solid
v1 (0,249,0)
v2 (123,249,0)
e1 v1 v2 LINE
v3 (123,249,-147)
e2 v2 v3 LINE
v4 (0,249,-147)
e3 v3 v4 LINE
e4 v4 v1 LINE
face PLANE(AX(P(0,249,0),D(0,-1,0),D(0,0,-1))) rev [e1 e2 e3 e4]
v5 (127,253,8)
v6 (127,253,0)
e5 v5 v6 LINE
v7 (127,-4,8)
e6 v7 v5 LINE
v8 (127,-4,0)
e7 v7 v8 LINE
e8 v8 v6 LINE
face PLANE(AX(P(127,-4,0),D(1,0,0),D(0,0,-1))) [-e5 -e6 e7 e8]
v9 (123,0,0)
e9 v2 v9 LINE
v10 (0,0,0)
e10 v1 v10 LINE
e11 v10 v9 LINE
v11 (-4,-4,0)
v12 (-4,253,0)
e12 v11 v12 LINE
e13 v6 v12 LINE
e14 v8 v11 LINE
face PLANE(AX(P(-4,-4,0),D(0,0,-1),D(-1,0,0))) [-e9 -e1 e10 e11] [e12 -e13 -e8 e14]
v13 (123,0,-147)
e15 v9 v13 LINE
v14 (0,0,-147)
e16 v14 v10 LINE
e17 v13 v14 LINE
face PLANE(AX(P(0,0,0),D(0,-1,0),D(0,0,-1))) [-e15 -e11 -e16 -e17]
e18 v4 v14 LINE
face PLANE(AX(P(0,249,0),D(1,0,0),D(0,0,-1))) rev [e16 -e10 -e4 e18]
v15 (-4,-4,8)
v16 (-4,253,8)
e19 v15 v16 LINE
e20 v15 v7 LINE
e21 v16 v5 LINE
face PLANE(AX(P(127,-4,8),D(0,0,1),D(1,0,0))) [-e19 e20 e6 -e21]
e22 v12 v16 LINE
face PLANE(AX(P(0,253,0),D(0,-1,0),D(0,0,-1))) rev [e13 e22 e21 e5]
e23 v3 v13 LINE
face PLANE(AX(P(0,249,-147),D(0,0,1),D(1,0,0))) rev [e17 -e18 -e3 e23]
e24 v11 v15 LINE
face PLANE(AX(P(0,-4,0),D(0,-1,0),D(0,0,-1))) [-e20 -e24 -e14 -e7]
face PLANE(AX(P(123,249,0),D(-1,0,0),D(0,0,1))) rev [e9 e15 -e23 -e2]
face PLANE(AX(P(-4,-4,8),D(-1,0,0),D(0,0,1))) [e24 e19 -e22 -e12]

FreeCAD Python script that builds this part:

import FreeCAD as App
import Part
import Sketcher
Q = App.Units.Quantity


def add_polygon(sketch, points):
    """Adds a closed chain of lines whose ends are joined by coincident constraints."""
    first, n = sketch.GeometryCount, len(points)
    for a, b in zip(points, points[1:] + points[:1]):
        sketch.addGeometry(Part.LineSegment(App.Vector(*a, 0), App.Vector(*b, 0)), False)
    for i in range(n):
        sketch.addConstraint(Sketcher.Constraint("Coincident", first + i, 2, first + (i + 1) % n, 1))

doc = App.newDocument("Part")
body = doc.addObject("PartDesign::Body", "Body")

# Sketch on XZ plane
sketch1 = body.newObject("Sketcher::SketchObject", "Sketch")
sketch1.AttachmentSupport = (doc.getObject("XZ_Plane"), [""])
sketch1.MapMode = "FlatFace"
add_polygon(sketch1, [(0, -147), (0, 0), (123, 0), (123, -147)])  # lines 0-3
sketch1.addConstraint([
    Sketcher.Constraint("Vertical", 0),
    Sketcher.Constraint("Horizontal", 1),
    Sketcher.Constraint("Vertical", 2),
    Sketcher.Constraint("Horizontal", 3),
    Sketcher.Constraint("Coincident", 0, 2, -1, 1),
    Sketcher.Constraint("DistanceX", 1, 1, 1, 2, Q("123 mm")),
    Sketcher.Constraint("DistanceY", 0, 1, 0, 2, Q("147 mm")),
])
pad1 = body.newObject("PartDesign::Pad", "Pad")
pad1.Profile = sketch1
pad1.Length = 249
pad1.Reversed = True

# Sketch on XZ plane
sketch2 = body.newObject("Sketcher::SketchObject", "Sketch001")
sketch2.AttachmentSupport = (doc.getObject("XZ_Plane"), [""])
sketch2.MapMode = "FlatFace"
add_polygon(sketch2, [(-4, 0), (-4, 8), (127, 8), (127, 0)])  # lines 0-3
sketch2.addConstraint([
    Sketcher.Constraint("Vertical", 0),
    Sketcher.Constraint("Horizontal", 1),
    Sketcher.Constraint("Vertical", 2),
    Sketcher.Constraint("Horizontal", 3),
    Sketcher.Constraint("PointOnObject", 2, 2, -1),
    Sketcher.Constraint("DistanceX", 1, 1, 1, 2, Q("131 mm")),
    Sketcher.Constraint("DistanceY", 0, 1, 0, 2, Q("8 mm")),
    Sketcher.Constraint("DistanceX", 0, 2, -1, 1, Q("4 mm")),
])
pad2 = body.newObject("PartDesign::Pad", "Pad001")
pad2.Profile = sketch2
pad2.Type = "TwoLengths"
pad2.Length = 253
pad2.Length2 = 4
pad2.Reversed = True

doc.recompute()
